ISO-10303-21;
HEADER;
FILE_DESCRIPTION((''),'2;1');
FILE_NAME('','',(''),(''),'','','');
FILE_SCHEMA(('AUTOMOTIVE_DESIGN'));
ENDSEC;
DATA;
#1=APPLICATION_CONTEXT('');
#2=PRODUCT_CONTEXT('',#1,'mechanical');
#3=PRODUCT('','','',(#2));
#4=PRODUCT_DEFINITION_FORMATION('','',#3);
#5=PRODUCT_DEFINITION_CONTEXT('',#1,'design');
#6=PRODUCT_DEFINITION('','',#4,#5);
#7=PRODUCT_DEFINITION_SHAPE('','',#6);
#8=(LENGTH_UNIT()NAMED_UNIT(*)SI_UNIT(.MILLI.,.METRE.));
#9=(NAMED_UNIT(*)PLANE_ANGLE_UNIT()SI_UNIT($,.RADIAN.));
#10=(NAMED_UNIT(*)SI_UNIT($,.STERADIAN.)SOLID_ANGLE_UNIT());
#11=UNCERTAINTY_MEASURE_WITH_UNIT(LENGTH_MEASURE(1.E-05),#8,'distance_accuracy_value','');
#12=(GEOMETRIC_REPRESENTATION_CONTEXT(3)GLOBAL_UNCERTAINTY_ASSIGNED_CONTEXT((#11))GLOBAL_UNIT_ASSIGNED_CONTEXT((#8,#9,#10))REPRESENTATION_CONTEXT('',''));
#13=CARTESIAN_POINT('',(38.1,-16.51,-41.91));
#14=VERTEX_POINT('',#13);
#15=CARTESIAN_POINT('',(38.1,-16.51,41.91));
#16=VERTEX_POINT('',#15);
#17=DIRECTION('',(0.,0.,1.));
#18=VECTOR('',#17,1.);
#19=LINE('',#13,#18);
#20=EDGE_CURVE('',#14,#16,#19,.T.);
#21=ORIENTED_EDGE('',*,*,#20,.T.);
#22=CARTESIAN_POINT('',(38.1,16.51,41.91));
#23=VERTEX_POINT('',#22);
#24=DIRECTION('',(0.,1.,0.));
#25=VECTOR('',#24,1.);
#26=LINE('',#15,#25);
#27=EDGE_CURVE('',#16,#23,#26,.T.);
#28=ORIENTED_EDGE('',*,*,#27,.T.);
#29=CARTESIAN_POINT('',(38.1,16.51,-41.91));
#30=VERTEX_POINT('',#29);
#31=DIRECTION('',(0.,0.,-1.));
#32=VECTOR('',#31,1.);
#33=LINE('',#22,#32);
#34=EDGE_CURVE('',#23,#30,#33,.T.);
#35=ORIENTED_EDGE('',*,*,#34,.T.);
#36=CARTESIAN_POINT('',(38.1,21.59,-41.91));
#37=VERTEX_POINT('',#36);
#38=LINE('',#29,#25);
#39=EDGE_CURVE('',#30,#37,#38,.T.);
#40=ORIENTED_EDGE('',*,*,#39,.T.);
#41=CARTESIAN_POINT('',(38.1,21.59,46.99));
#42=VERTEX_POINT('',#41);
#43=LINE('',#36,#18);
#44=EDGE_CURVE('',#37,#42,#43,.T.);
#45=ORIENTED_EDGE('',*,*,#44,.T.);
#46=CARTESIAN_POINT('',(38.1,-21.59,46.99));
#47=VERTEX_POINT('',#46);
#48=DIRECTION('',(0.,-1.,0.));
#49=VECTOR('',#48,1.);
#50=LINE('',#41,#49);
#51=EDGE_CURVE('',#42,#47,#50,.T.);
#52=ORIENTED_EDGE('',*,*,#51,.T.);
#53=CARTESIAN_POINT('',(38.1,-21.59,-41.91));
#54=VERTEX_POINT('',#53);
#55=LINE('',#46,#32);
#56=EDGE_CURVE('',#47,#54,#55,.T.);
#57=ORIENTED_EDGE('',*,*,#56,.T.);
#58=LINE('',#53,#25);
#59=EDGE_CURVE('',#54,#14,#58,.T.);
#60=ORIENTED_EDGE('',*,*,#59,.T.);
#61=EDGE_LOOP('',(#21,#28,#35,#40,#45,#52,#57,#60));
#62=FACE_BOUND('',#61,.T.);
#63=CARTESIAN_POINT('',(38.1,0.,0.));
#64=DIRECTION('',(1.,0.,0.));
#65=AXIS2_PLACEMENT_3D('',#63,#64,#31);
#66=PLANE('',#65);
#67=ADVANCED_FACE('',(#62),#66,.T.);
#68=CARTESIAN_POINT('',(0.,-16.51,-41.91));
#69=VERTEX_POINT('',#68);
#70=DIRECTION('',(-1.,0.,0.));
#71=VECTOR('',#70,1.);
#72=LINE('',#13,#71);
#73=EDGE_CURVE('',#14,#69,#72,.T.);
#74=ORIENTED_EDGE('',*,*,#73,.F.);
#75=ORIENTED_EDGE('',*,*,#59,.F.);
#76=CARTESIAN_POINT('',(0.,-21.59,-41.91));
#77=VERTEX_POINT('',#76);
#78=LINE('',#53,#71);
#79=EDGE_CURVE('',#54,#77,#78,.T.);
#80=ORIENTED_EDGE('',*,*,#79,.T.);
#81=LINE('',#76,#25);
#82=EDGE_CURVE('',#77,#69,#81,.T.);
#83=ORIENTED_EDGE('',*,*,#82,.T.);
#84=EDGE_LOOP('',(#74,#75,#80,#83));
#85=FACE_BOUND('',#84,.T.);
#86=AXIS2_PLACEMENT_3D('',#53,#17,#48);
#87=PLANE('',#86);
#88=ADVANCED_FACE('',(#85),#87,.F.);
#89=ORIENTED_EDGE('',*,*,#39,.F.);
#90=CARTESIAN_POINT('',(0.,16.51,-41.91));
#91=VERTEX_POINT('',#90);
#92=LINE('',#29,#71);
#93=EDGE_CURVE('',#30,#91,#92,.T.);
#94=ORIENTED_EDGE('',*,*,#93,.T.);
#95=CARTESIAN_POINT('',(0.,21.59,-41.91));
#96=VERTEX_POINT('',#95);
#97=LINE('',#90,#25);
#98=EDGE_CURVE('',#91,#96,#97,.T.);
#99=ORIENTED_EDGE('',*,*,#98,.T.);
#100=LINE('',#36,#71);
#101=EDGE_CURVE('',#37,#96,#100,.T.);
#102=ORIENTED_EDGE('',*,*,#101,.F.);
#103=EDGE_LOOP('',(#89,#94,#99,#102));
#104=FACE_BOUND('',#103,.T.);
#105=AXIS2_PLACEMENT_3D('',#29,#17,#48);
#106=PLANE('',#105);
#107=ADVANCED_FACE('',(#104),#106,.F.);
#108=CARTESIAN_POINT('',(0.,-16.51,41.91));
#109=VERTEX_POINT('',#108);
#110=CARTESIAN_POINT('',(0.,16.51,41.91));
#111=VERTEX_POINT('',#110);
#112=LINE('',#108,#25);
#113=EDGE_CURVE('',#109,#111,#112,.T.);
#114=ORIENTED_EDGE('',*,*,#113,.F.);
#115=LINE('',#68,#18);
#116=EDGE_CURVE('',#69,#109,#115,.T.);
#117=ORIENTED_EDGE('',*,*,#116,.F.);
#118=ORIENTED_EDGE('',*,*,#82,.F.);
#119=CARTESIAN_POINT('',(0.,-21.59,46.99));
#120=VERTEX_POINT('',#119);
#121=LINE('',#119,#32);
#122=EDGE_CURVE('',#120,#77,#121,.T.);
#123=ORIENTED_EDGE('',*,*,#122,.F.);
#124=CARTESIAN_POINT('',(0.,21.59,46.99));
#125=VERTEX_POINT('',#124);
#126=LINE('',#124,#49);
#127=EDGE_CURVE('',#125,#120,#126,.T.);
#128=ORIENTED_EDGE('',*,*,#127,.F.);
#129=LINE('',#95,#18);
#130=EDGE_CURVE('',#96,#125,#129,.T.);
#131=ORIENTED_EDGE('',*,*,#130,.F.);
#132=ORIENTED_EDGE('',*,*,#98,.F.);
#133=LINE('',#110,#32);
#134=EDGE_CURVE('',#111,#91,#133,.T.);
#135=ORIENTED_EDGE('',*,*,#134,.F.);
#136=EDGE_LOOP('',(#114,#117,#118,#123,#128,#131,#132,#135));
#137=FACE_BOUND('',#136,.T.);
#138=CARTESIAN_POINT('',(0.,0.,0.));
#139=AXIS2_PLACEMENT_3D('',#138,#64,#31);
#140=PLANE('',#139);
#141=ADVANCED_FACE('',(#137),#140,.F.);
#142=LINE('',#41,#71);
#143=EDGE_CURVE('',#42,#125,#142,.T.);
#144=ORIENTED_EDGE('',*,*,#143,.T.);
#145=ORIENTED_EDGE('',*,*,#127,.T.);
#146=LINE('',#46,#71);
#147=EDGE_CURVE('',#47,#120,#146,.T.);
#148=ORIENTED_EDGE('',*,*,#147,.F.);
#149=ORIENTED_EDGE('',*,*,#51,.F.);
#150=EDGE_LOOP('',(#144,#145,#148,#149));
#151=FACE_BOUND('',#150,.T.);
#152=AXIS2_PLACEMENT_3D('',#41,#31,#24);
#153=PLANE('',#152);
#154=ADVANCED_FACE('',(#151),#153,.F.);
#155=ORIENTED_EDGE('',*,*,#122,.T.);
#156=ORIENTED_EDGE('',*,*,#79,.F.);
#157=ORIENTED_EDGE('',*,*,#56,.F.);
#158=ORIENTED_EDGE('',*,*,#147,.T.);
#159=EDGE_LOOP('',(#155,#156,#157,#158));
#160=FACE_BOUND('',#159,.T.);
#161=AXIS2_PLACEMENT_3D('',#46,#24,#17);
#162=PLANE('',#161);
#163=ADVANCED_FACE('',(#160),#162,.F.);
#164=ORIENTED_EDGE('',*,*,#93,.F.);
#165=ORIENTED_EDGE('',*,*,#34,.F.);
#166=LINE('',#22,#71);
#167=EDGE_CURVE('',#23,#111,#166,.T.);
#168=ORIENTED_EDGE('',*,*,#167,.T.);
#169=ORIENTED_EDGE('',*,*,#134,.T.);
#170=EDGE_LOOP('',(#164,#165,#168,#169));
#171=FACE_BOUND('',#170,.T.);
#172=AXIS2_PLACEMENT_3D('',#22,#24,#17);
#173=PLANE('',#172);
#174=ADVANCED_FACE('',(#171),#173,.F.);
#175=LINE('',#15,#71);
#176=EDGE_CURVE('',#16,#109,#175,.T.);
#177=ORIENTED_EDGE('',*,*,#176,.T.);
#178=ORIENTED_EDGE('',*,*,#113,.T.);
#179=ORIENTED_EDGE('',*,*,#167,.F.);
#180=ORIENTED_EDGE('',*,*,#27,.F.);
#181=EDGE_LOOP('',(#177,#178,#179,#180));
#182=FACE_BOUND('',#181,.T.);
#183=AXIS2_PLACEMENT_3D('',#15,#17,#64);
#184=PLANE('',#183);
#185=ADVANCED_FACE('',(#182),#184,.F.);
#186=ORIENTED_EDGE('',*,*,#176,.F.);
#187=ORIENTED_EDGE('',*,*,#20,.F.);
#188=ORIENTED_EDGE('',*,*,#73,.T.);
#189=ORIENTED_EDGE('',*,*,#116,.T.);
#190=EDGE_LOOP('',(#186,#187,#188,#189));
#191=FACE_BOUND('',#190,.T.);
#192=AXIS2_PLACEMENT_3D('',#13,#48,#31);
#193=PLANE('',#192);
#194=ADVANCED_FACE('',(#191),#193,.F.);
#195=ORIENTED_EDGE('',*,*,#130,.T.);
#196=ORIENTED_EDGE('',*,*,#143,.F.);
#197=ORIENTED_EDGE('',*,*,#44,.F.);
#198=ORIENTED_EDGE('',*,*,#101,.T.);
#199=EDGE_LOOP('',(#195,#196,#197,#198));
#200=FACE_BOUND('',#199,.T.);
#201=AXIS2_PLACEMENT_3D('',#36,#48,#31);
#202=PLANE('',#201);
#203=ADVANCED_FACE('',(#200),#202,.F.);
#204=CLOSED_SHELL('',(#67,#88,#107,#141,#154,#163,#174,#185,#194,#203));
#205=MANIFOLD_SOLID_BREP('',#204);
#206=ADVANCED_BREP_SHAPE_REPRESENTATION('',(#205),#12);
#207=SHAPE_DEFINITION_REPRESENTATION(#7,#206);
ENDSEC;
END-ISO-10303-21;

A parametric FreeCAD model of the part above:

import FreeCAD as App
import Part
import Sketcher

V = App.Vector
Q = App.Units.Quantity

doc = App.newDocument("Part")
params = doc.addObject("Spreadsheet::Sheet", "Params")
for row, (alias, value) in enumerate([
    ("sketch1_width", "1.3 in"),
    ("sketch1_width2", "0.2 in"),
    ("sketch1_height", "3.3 in"),
    ("sketch1_height2", "3.5 in"),
    ("pad1_length", "1.5 in"),
], start=1):
    params.set(f"A{row}", alias)
    params.set(f"B{row}", "=" + value)
    params.setAlias(f"B{row}", alias)

body = doc.addObject("PartDesign::Body", "Body")

sketch1 = body.newObject("Sketcher::SketchObject", "Sketch")
sketch1.AttachmentSupport = (doc.getObject("YZ_Plane"), [""])
sketch1.MapMode = "FlatFace"
sketch1.addGeometry([
    Part.LineSegment(V(-16.51, -41.91, 0), V(-16.51, 41.91, 0)),
    Part.LineSegment(V(-16.51, 41.91, 0), V(16.51, 41.91, 0)),
    Part.LineSegment(V(16.51, 41.91, 0), V(16.51, -41.91, 0)),
    Part.LineSegment(V(16.51, -41.91, 0), V(21.59, -41.91, 0)),
    Part.LineSegment(V(21.59, -41.91, 0), V(21.59, 46.99, 0)),
    Part.LineSegment(V(21.59, 46.99, 0), V(-21.59, 46.99, 0)),
    Part.LineSegment(V(-21.59, 46.99, 0), V(-21.59, -41.91, 0)),
    Part.LineSegment(V(-21.59, -41.91, 0), V(-16.51, -41.91, 0)),
], False)
sketch1.addConstraint([
    Sketcher.Constraint("Coincident", 0, 2, 1, 1),
    Sketcher.Constraint("Coincident", 1, 2, 2, 1),
    Sketcher.Constraint("Coincident", 2, 2, 3, 1),
    Sketcher.Constraint("Coincident", 3, 2, 4, 1),
    Sketcher.Constraint("Coincident", 4, 2, 5, 1),
    Sketcher.Constraint("Coincident", 5, 2, 6, 1),
    Sketcher.Constraint("Coincident", 6, 2, 7, 1),
    Sketcher.Constraint("Coincident", 7, 2, 0, 1),
    Sketcher.Constraint("Vertical", 0),
    Sketcher.Constraint("Horizontal", 1),
    Sketcher.Constraint("Vertical", 2),
    Sketcher.Constraint("Horizontal", 3),
    Sketcher.Constraint("Vertical", 4),
    Sketcher.Constraint("Horizontal", 5),
    Sketcher.Constraint("Vertical", 6),
    Sketcher.Constraint("Horizontal", 7),
    Sketcher.Constraint("Symmetric", 0, 2, 2, 2, -1, 1),
    Sketcher.Constraint("Symmetric", 3, 2, 6, 2, -2),
    Sketcher.Constraint("DistanceX", 1, 1, 1, 2, Q("1.3 in")),
    Sketcher.Constraint("DistanceX", 3, 1, 3, 2, Q("0.2 in")),
    Sketcher.Constraint("DistanceY", 0, 1, 0, 2, Q("3.3 in")),
    Sketcher.Constraint("DistanceY", 4, 1, 4, 2, Q("3.5 in")),
])
sketch1.setExpression("Constraints[18]", "Params.sketch1_width")
sketch1.setExpression("Constraints[19]", "Params.sketch1_width2")
sketch1.setExpression("Constraints[20]", "Params.sketch1_height")
sketch1.setExpression("Constraints[21]", "Params.sketch1_height2")
pad1 = body.newObject("PartDesign::Pad", "Pad")
pad1.Profile = sketch1
pad1.setExpression("Length", "Params.pad1_length")

doc.recompute()
